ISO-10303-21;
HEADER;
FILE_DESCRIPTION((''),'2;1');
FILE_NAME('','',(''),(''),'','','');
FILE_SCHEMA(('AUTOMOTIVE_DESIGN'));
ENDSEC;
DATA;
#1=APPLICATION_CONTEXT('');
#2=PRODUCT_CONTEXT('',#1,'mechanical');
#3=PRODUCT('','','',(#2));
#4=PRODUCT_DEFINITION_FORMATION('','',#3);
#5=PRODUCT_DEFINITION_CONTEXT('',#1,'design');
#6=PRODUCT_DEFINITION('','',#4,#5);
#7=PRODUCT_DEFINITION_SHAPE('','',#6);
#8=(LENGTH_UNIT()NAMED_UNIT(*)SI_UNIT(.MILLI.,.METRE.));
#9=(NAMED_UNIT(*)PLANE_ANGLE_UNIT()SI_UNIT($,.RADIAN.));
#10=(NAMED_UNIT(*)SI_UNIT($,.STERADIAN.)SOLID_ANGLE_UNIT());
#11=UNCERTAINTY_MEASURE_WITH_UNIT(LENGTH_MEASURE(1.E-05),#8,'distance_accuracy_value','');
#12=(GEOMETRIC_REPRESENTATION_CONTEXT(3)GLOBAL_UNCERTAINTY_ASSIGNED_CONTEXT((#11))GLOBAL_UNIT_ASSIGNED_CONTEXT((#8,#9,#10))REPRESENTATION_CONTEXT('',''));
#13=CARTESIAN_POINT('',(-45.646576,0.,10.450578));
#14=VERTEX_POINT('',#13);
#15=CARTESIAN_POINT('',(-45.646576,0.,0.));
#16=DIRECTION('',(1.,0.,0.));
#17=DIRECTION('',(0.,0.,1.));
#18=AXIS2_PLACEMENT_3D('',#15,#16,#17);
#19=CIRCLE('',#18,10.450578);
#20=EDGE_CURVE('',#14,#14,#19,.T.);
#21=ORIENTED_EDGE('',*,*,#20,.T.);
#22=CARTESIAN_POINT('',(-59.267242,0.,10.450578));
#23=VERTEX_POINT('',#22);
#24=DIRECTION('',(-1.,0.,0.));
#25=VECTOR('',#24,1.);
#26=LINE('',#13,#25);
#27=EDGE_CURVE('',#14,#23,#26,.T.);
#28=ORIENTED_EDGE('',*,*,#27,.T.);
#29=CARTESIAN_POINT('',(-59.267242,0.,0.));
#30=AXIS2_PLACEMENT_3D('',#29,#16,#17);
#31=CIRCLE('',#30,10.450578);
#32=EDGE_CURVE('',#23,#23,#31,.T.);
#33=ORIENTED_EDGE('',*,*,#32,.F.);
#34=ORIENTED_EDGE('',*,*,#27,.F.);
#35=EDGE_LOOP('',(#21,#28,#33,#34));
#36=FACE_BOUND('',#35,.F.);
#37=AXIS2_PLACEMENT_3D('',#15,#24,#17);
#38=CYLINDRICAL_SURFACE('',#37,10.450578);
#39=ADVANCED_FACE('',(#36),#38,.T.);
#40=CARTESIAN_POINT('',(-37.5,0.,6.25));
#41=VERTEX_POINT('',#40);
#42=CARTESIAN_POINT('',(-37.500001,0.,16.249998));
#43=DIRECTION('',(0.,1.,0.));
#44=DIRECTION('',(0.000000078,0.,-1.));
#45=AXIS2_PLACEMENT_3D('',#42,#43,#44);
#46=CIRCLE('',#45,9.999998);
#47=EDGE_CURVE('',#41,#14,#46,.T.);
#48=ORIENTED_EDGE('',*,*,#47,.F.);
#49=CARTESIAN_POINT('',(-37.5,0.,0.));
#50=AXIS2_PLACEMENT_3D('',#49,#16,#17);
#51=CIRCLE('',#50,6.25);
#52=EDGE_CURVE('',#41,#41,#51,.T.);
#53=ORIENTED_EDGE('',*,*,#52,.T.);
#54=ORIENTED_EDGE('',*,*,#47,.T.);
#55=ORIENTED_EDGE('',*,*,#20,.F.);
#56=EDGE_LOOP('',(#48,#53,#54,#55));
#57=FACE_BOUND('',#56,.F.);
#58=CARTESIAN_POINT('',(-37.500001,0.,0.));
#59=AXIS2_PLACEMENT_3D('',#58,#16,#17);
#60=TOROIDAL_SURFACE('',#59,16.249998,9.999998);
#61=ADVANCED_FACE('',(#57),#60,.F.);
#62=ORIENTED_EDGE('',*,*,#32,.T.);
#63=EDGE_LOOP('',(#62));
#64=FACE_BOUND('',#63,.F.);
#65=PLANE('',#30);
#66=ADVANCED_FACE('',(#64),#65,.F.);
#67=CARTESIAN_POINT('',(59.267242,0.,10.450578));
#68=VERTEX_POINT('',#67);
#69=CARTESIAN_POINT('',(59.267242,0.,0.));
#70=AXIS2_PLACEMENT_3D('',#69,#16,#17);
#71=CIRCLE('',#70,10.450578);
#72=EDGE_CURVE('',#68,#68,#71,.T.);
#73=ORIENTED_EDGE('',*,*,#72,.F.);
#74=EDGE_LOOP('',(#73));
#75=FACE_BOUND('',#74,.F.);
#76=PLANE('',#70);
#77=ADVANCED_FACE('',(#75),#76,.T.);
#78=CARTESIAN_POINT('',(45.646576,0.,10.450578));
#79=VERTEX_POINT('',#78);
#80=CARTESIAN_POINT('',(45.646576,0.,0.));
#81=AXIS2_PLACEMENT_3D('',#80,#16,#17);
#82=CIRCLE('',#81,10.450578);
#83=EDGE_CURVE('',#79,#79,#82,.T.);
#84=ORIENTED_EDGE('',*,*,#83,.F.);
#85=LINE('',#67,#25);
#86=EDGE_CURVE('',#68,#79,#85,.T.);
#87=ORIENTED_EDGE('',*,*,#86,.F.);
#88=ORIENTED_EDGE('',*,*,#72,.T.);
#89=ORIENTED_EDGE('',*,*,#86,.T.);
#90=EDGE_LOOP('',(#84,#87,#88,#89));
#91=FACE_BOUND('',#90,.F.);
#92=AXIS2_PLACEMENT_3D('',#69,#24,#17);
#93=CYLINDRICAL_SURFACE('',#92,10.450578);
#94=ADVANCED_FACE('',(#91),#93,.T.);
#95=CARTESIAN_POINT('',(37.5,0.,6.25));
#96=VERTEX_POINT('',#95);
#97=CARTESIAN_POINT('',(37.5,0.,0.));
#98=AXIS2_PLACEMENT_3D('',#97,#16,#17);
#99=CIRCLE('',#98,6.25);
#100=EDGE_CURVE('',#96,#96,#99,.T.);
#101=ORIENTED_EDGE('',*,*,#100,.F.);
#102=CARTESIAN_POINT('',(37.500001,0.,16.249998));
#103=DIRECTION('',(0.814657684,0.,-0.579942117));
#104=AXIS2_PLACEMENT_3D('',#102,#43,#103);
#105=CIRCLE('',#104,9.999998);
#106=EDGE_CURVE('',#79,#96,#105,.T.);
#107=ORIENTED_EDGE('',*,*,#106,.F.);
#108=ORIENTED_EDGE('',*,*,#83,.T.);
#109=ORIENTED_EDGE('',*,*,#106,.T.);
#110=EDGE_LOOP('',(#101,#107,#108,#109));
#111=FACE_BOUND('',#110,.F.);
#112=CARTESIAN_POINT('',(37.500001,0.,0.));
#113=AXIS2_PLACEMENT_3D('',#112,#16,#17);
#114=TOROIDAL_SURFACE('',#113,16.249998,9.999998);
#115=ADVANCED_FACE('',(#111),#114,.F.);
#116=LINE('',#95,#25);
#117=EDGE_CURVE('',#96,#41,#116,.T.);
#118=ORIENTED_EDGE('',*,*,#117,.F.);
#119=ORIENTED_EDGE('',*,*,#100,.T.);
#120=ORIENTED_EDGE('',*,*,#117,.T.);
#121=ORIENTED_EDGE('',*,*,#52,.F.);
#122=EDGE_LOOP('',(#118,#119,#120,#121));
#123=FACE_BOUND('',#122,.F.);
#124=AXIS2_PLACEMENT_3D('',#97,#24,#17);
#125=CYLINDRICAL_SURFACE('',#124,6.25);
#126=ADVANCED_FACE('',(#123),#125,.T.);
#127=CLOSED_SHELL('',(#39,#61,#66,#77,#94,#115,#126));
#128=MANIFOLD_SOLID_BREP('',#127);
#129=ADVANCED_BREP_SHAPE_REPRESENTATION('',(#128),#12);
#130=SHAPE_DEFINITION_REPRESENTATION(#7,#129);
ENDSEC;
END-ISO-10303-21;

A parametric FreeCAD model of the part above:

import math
import FreeCAD as App
import Part
import Sketcher
from FreeCAD import Vector

doc = App.newDocument("Part")
body = doc.addObject("PartDesign::Body", "Body")

sketch1 = body.newObject("Sketcher::SketchObject", "Sketch")
sketch1.AttachmentSupport = (doc.getObject("XZ_Plane"), [""])
sketch1.MapMode = "FlatFace"
sketch1.addGeometry([
    Part.LineSegment(Vector(38, 6, 0), Vector(-38, 6, 0)),
    Part.ArcOfCircle(Part.Circle(Vector(-38, 16, 0), Vector(0, 0, 1), 10), math.radians(-145), math.radians(-90)),
    Part.LineSegment(Vector(-46, 10, 0), Vector(-59, 10, 0)),
    Part.LineSegment(Vector(-59, 10, 0), Vector(-59, 0, 0)),
    Part.LineSegment(Vector(-59, 0, 0), Vector(59, 0, 0)),
    Part.LineSegment(Vector(59, 0, 0), Vector(59, 10, 0)),
    Part.LineSegment(Vector(59, 10, 0), Vector(46, 10, 0)),
    Part.ArcOfCircle(Part.Circle(Vector(38, 16, 0), Vector(0, 0, 1), 10), math.radians(-90), math.radians(-35)),
], False)
sketch1.addConstraint([
    Sketcher.Constraint("Tangent", 0, 2, 1, 2),
    Sketcher.Constraint("Coincident", 1, 1, 2, 1),
    Sketcher.Constraint("Coincident", 2, 2, 3, 1),
    Sketcher.Constraint("Coincident", 3, 2, 4, 1),
    Sketcher.Constraint("Coincident", 4, 2, 5, 1),
    Sketcher.Constraint("Coincident", 5, 2, 6, 1),
    Sketcher.Constraint("Coincident", 6, 2, 7, 2),
    Sketcher.Constraint("Tangent", 7, 1, 0, 1),
    Sketcher.Constraint("Horizontal", 0),
    Sketcher.Constraint("Horizontal", 2),
    Sketcher.Constraint("Vertical", 3),
    Sketcher.Constraint("Horizontal", 4),
    Sketcher.Constraint("Vertical", 5),
    Sketcher.Constraint("Horizontal", 6),
    Sketcher.Constraint("Equal", 1, 7),
    Sketcher.Constraint("Symmetric", 3, 2, 4, 2, -1, 1),
    Sketcher.Constraint("Symmetric", 1, 1, 6, 2, -2),
    Sketcher.Constraint("Radius", 1, 9.999998),
    Sketcher.Constraint("DistanceX", 0, 2, 0, 1, 75.0),
    Sketcher.Constraint("DistanceY", -1, 1, 1, 3, 16.249998),
    Sketcher.Constraint("DistanceX", 2, 2, 2, 1, 13.620666),
    Sketcher.Constraint("DistanceX", 4, 1, 4, 2, 118.534484),
])
revolution = body.newObject("PartDesign::Revolution", "Revolution")
revolution.Profile = sketch1
revolution.ReferenceAxis = (sketch1, ["H_Axis"])
revolution.Angle = 360

doc.recompute()
